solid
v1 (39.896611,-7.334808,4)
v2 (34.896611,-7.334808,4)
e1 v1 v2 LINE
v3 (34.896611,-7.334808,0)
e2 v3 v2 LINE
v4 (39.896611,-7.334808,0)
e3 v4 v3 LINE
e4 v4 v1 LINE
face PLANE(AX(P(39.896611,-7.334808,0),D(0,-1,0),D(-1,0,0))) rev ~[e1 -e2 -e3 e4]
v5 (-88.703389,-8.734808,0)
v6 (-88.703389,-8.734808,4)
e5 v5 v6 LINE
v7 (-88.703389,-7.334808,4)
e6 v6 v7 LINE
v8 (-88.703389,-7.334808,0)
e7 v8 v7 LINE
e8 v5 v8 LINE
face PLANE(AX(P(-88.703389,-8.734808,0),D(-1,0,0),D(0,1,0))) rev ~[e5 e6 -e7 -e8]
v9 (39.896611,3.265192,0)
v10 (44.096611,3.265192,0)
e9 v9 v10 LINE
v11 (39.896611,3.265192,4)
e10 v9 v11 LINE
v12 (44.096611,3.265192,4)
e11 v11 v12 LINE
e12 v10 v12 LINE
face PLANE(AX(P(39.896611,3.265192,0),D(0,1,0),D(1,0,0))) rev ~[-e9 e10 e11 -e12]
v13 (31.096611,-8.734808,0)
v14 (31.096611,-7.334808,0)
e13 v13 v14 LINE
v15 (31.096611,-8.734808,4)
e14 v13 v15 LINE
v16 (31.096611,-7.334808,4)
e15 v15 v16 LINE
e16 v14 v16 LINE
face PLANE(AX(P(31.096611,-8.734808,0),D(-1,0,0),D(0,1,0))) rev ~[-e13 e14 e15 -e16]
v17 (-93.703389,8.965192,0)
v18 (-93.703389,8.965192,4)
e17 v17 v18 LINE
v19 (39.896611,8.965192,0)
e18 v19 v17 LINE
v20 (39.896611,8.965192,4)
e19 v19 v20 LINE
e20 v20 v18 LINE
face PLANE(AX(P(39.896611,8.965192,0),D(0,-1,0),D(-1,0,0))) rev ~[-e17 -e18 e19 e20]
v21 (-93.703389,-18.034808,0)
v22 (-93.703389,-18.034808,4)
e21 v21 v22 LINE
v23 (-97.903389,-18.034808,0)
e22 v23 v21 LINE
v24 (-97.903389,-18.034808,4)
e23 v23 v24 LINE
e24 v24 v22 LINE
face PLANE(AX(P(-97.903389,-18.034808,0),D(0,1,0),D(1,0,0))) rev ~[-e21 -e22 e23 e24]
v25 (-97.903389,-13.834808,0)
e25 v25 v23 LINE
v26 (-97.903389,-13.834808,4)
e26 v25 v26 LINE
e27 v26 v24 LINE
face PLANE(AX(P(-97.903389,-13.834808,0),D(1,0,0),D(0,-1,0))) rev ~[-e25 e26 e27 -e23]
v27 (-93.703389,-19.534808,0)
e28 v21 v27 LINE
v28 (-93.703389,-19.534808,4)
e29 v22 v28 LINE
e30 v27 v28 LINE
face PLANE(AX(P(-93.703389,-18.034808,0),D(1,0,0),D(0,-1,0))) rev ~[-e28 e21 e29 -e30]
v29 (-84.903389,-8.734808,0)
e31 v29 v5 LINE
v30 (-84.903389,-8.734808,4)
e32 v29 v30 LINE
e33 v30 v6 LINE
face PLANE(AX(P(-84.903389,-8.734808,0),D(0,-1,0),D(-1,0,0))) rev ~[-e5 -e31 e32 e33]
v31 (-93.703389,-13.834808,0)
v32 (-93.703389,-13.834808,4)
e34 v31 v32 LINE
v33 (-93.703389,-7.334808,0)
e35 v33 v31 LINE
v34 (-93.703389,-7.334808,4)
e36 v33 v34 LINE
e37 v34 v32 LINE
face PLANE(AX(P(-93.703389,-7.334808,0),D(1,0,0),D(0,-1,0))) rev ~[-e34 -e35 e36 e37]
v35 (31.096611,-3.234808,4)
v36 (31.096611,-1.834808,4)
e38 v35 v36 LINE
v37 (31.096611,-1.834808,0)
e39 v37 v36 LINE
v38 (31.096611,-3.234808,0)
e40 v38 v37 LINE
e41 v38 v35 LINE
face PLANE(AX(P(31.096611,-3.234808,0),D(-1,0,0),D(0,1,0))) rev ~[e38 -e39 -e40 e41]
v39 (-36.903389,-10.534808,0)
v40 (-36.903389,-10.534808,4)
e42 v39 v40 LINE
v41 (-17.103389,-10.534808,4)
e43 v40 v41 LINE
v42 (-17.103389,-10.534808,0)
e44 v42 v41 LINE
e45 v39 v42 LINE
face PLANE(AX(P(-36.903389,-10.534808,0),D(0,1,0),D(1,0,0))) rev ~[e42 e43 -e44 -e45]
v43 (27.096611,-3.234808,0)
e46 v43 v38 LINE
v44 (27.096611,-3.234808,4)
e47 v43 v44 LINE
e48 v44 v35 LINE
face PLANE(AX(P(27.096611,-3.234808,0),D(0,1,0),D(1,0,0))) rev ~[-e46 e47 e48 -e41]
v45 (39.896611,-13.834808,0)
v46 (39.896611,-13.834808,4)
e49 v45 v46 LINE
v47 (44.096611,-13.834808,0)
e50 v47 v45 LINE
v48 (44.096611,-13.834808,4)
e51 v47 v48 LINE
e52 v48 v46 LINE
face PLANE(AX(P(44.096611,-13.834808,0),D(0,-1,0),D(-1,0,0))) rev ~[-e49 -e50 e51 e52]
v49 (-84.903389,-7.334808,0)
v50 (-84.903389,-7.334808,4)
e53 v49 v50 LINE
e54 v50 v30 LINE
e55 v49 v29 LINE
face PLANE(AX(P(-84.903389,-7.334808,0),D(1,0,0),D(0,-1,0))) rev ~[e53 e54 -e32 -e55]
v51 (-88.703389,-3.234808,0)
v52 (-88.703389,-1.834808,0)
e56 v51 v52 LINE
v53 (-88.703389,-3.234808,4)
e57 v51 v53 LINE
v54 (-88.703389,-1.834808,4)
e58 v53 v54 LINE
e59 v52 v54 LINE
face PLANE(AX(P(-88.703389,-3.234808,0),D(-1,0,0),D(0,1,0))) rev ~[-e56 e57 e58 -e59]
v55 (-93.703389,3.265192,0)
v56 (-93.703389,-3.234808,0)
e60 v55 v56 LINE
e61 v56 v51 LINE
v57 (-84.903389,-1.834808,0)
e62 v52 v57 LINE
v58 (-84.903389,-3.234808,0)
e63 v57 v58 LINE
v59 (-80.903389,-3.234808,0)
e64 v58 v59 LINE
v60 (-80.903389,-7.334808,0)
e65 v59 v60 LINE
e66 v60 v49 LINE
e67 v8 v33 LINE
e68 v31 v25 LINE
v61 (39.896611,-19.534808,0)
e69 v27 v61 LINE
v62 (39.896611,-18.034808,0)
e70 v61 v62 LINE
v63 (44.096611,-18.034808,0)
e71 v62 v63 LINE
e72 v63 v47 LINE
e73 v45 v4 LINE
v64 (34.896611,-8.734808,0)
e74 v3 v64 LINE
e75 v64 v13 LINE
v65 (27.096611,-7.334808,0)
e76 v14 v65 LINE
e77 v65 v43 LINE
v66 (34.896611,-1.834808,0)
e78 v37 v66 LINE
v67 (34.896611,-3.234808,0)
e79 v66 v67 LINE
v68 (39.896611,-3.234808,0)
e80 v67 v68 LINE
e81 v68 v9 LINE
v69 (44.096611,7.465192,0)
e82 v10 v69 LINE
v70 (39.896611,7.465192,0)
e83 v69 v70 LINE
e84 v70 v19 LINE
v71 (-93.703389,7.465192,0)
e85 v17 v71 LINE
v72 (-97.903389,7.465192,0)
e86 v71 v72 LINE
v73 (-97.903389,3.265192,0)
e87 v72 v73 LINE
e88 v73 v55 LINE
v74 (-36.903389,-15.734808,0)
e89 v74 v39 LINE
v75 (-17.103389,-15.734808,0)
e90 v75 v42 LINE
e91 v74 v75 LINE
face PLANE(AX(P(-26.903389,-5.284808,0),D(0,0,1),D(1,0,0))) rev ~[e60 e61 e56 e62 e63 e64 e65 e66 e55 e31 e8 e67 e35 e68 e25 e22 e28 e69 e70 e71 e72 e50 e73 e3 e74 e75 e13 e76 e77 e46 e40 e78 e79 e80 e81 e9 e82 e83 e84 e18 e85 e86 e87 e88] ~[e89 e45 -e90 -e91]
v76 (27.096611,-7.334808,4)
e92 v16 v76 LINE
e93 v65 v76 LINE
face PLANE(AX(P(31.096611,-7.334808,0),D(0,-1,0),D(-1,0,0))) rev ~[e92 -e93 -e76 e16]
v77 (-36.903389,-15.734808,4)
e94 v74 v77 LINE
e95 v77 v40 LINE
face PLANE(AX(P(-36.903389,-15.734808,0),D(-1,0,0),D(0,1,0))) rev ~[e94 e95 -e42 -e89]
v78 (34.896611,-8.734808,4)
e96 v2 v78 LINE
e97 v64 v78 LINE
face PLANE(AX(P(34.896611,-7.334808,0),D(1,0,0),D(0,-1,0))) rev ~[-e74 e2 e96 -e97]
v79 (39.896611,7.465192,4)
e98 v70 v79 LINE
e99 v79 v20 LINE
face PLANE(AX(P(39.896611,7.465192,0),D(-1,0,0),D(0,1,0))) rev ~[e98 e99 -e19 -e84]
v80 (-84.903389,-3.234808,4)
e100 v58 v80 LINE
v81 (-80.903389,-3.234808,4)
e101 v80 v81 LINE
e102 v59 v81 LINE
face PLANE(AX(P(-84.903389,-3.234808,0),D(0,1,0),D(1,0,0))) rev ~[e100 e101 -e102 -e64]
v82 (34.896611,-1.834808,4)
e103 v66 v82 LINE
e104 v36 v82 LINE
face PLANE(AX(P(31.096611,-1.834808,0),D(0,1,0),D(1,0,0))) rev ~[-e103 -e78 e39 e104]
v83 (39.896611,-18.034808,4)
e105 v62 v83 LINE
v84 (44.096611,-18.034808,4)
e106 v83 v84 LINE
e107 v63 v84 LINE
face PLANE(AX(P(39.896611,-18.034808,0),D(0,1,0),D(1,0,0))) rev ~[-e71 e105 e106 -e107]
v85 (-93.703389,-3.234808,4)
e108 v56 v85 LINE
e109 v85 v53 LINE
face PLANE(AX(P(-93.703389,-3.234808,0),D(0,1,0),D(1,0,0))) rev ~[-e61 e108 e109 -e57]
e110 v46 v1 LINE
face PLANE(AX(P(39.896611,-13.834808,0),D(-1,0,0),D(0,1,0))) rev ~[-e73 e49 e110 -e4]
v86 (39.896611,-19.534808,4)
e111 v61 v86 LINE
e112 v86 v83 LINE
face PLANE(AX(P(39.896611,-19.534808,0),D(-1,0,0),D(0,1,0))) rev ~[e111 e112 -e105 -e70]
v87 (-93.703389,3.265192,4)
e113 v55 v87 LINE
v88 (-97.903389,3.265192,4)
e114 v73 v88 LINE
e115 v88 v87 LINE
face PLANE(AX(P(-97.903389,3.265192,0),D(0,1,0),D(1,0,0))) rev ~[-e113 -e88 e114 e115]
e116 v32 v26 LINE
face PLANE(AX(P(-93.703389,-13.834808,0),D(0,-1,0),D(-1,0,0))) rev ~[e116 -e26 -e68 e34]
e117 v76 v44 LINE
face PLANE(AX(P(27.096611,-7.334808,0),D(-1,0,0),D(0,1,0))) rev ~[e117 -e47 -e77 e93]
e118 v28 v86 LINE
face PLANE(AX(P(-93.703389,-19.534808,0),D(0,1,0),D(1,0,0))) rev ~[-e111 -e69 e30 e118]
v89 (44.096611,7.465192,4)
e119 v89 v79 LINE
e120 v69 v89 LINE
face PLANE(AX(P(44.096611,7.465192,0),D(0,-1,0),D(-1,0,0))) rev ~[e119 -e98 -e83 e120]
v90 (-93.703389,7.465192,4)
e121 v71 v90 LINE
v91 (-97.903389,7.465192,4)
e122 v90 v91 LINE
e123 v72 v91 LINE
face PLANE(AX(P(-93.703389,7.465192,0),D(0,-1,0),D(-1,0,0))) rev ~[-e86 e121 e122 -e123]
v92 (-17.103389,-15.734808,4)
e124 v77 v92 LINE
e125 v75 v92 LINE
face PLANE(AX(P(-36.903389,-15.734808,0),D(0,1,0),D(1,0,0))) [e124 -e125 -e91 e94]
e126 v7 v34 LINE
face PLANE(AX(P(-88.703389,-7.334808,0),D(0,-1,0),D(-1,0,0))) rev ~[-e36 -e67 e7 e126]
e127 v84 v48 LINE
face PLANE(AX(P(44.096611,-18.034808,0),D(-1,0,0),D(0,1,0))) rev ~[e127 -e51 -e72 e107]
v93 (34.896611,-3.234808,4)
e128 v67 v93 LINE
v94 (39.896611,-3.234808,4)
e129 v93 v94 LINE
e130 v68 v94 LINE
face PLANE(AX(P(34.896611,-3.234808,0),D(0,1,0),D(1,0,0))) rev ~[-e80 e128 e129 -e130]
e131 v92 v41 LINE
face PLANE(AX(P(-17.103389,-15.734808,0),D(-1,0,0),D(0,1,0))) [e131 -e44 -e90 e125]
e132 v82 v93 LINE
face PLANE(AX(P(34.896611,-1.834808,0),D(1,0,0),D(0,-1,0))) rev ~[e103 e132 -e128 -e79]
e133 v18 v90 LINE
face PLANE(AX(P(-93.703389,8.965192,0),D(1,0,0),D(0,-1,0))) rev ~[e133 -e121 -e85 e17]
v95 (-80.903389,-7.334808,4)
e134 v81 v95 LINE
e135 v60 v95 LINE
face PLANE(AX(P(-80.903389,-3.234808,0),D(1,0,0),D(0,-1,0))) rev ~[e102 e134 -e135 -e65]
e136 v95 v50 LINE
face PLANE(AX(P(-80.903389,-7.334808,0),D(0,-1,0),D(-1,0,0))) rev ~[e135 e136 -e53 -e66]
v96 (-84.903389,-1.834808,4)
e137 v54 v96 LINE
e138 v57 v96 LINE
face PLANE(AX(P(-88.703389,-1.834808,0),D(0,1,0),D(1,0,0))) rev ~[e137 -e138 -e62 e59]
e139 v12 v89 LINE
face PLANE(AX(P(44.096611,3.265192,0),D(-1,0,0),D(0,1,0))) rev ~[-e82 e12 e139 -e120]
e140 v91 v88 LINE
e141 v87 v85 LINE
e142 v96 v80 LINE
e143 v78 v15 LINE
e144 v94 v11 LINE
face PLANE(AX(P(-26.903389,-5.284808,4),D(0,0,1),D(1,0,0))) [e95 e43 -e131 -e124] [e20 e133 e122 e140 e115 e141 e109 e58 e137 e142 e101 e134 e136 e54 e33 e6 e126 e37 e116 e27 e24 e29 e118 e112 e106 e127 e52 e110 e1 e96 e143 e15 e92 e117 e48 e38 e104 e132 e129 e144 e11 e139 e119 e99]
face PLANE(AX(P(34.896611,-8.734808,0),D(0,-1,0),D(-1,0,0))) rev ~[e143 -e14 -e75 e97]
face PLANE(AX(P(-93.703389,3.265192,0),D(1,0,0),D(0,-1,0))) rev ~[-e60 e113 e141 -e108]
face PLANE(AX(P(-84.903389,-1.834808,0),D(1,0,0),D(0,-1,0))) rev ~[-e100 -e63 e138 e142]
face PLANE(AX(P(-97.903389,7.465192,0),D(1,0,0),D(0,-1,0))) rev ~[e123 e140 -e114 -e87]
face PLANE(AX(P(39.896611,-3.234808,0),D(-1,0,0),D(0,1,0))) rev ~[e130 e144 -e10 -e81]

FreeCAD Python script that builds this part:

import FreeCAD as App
import Part
import Sketcher
Q = App.Units.Quantity

doc = App.newDocument("Part")
params = doc.addObject("Spreadsheet::Sheet", "Params")
for row, (alias, value) in enumerate([
    ("sketch1_width", "5 mm"),
    ("sketch1_width2", "4 mm"),
    ("sketch1_width3", "133.6 mm"),
    ("sketch1_width4", "4.2 mm"),
    ("sketch1_width5", "3.8 mm"),
    ("pad1_length", "4 mm"),
], start=1):
    params.set(f"A{row}", alias)
    params.set(f"B{row}", "=" + value)
    params.setAlias(f"B{row}", alias)

body = doc.addObject("PartDesign::Body", "Body")

# Sketch on XY plane
sketch1 = doc.addObject("Sketcher::SketchObject", "Sketch")
body.addObject(sketch1)
sketch1.AttachmentSupport = (doc.XY_Plane, [""])
sketch1.MapMode = "FlatFace"
sketch1.addGeometry([
    Part.LineSegment(App.Vector(39.896611, 8.965192, 0), App.Vector(-93.703389, 8.965192, 0)),  # 0
    Part.LineSegment(App.Vector(-93.703389, 8.965192, 0), App.Vector(-93.703389, 7.465192, 0)),  # 1
    Part.LineSegment(App.Vector(-93.703389, 7.465192, 0), App.Vector(-97.903389, 7.465192, 0)),  # 2
    Part.LineSegment(App.Vector(-97.903389, 7.465192, 0), App.Vector(-97.903389, 3.265192, 0)),  # 3
    Part.LineSegment(App.Vector(-97.903389, 3.265192, 0), App.Vector(-93.703389, 3.265192, 0)),  # 4
    Part.LineSegment(App.Vector(-93.703389, 3.265192, 0), App.Vector(-93.703389, -3.234808, 0)),  # 5
    Part.LineSegment(App.Vector(-93.703389, -3.234808, 0), App.Vector(-88.703389, -3.234808, 0)),  # 6
    Part.LineSegment(App.Vector(-88.703389, -3.234808, 0), App.Vector(-88.703389, -1.834808, 0)),  # 7
    Part.LineSegment(App.Vector(-88.703389, -1.834808, 0), App.Vector(-84.903389, -1.834808, 0)),  # 8
    Part.LineSegment(App.Vector(-84.903389, -1.834808, 0), App.Vector(-84.903389, -3.234808, 0)),  # 9
    Part.LineSegment(App.Vector(-84.903389, -3.234808, 0), App.Vector(-80.903389, -3.234808, 0)),  # 10
    Part.LineSegment(App.Vector(-80.903389, -3.234808, 0), App.Vector(-80.903389, -7.334808, 0)),  # 11
    Part.LineSegment(App.Vector(-80.903389, -7.334808, 0), App.Vector(-84.903389, -7.334808, 0)),  # 12
    Part.LineSegment(App.Vector(-84.903389, -7.334808, 0), App.Vector(-84.903389, -8.734808, 0)),  # 13
    Part.LineSegment(App.Vector(-84.903389, -8.734808, 0), App.Vector(-88.703389, -8.734808, 0)),  # 14
    Part.LineSegment(App.Vector(-88.703389, -8.734808, 0), App.Vector(-88.703389, -7.334808, 0)),  # 15
    Part.LineSegment(App.Vector(-88.703389, -7.334808, 0), App.Vector(-93.703389, -7.334808, 0)),  # 16
    Part.LineSegment(App.Vector(-93.703389, -7.334808, 0), App.Vector(-93.703389, -13.834808, 0)),  # 17
    Part.LineSegment(App.Vector(-93.703389, -13.834808, 0), App.Vector(-97.903389, -13.834808, 0)),  # 18
    Part.LineSegment(App.Vector(-97.903389, -13.834808, 0), App.Vector(-97.903389, -18.034808, 0)),  # 19
    Part.LineSegment(App.Vector(-97.903389, -18.034808, 0), App.Vector(-93.703389, -18.034808, 0)),  # 20
    Part.LineSegment(App.Vector(-93.703389, -18.034808, 0), App.Vector(-93.703389, -19.534808, 0)),  # 21
    Part.LineSegment(App.Vector(-93.703389, -19.534808, 0), App.Vector(39.896611, -19.534808, 0)),  # 22
    Part.LineSegment(App.Vector(39.896611, -19.534808, 0), App.Vector(39.896611, -18.034808, 0)),  # 23
    Part.LineSegment(App.Vector(39.896611, -18.034808, 0), App.Vector(44.096611, -18.034808, 0)),  # 24
    Part.LineSegment(App.Vector(44.096611, -18.034808, 0), App.Vector(44.096611, -13.834808, 0)),  # 25
    Part.LineSegment(App.Vector(44.096611, -13.834808, 0), App.Vector(39.896611, -13.834808, 0)),  # 26
    Part.LineSegment(App.Vector(39.896611, -13.834808, 0), App.Vector(39.896611, -7.334808, 0)),  # 27
    Part.LineSegment(App.Vector(39.896611, -7.334808, 0), App.Vector(34.896611, -7.334808, 0)),  # 28
    Part.LineSegment(App.Vector(34.896611, -7.334808, 0), App.Vector(34.896611, -8.734808, 0)),  # 29
    Part.LineSegment(App.Vector(34.896611, -8.734808, 0), App.Vector(31.096611, -8.734808, 0)),  # 30
    Part.LineSegment(App.Vector(31.096611, -8.734808, 0), App.Vector(31.096611, -7.334808, 0)),  # 31
    Part.LineSegment(App.Vector(31.096611, -7.334808, 0), App.Vector(27.096611, -7.334808, 0)),  # 32
    Part.LineSegment(App.Vector(27.096611, -7.334808, 0), App.Vector(27.096611, -3.234808, 0)),  # 33
    Part.LineSegment(App.Vector(27.096611, -3.234808, 0), App.Vector(31.096611, -3.234808, 0)),  # 34
    Part.LineSegment(App.Vector(31.096611, -3.234808, 0), App.Vector(31.096611, -1.834808, 0)),  # 35
    Part.LineSegment(App.Vector(31.096611, -1.834808, 0), App.Vector(34.896611, -1.834808, 0)),  # 36
    Part.LineSegment(App.Vector(34.896611, -1.834808, 0), App.Vector(34.896611, -3.234808, 0)),  # 37
    Part.LineSegment(App.Vector(34.896611, -3.234808, 0), App.Vector(39.896611, -3.234808, 0)),  # 38
    Part.LineSegment(App.Vector(39.896611, -3.234808, 0), App.Vector(39.896611, 3.265192, 0)),  # 39
    Part.LineSegment(App.Vector(39.896611, 3.265192, 0), App.Vector(44.096611, 3.265192, 0)),  # 40
    Part.LineSegment(App.Vector(44.096611, 3.265192, 0), App.Vector(44.096611, 7.465192, 0)),  # 41
    Part.LineSegment(App.Vector(44.096611, 7.465192, 0), App.Vector(39.896611, 7.465192, 0)),  # 42
    Part.LineSegment(App.Vector(39.896611, 7.465192, 0), App.Vector(39.896611, 8.965192, 0)),  # 43
    Part.LineSegment(App.Vector(-17.103389, -15.734808, 0), App.Vector(-36.903389, -15.734808, 0)),  # 44
    Part.LineSegment(App.Vector(-36.903389, -15.734808, 0), App.Vector(-36.903389, -10.534808, 0)),  # 45
    Part.LineSegment(App.Vector(-36.903389, -10.534808, 0), App.Vector(-17.103389, -10.534808, 0)),  # 46
    Part.LineSegment(App.Vector(-17.103389, -10.534808, 0), App.Vector(-17.103389, -15.734808, 0)),  # 47
], False)
sketch1.addConstraint([
    Sketcher.Constraint("Coincident", 0, 2, 1, 1),
    Sketcher.Constraint("Coincident", 1, 2, 2, 1),
    Sketcher.Constraint("Coincident", 2, 2, 3, 1),
    Sketcher.Constraint("Coincident", 3, 2, 4, 1),
    Sketcher.Constraint("Coincident", 4, 2, 5, 1),
    Sketcher.Constraint("Coincident", 5, 2, 6, 1),
    Sketcher.Constraint("Coincident", 6, 2, 7, 1),
    Sketcher.Constraint("Coincident", 7, 2, 8, 1),
    Sketcher.Constraint("Coincident", 8, 2, 9, 1),
    Sketcher.Constraint("Coincident", 9, 2, 10, 1),
    Sketcher.Constraint("Coincident", 10, 2, 11, 1),
    Sketcher.Constraint("Coincident", 11, 2, 12, 1),
    Sketcher.Constraint("Coincident", 12, 2, 13, 1),
    Sketcher.Constraint("Coincident", 13, 2, 14, 1),
    Sketcher.Constraint("Coincident", 14, 2, 15, 1),
    Sketcher.Constraint("Coincident", 15, 2, 16, 1),
    Sketcher.Constraint("Coincident", 16, 2, 17, 1),
    Sketcher.Constraint("Coincident", 17, 2, 18, 1),
    Sketcher.Constraint("Coincident", 18, 2, 19, 1),
    Sketcher.Constraint("Coincident", 19, 2, 20, 1),
    Sketcher.Constraint("Coincident", 20, 2, 21, 1),
    Sketcher.Constraint("Coincident", 21, 2, 22, 1),
    Sketcher.Constraint("Coincident", 22, 2, 23, 1),
    Sketcher.Constraint("Coincident", 23, 2, 24, 1),
    Sketcher.Constraint("Coincident", 24, 2, 25, 1),
    Sketcher.Constraint("Coincident", 25, 2, 26, 1),
    Sketcher.Constraint("Coincident", 26, 2, 27, 1),
    Sketcher.Constraint("Coincident", 27, 2, 28, 1),
    Sketcher.Constraint("Coincident", 28, 2, 29, 1),
    Sketcher.Constraint("Coincident", 29, 2, 30, 1),
    Sketcher.Constraint("Coincident", 30, 2, 31, 1),
    Sketcher.Constraint("Coincident", 31, 2, 32, 1),
    Sketcher.Constraint("Coincident", 32, 2, 33, 1),
    Sketcher.Constraint("Coincident", 33, 2, 34, 1),
    Sketcher.Constraint("Coincident", 34, 2, 35, 1),
    Sketcher.Constraint("Coincident", 35, 2, 36, 1),
    Sketcher.Constraint("Coincident", 36, 2, 37, 1),
    Sketcher.Constraint("Coincident", 37, 2, 38, 1),
    Sketcher.Constraint("Coincident", 38, 2, 39, 1),
    Sketcher.Constraint("Coincident", 39, 2, 40, 1),
    Sketcher.Constraint("Coincident", 40, 2, 41, 1),
    Sketcher.Constraint("Coincident", 41, 2, 42, 1),
    Sketcher.Constraint("Coincident", 42, 2, 43, 1),
    Sketcher.Constraint("Coincident", 43, 2, 0, 1),
    Sketcher.Constraint("Coincident", 44, 2, 45, 1),
    Sketcher.Constraint("Coincident", 45, 2, 46, 1),
    Sketcher.Constraint("Coincident", 46, 2, 47, 1),
    Sketcher.Constraint("Coincident", 47, 2, 44, 1),
    Sketcher.Constraint("Horizontal", 0),
    Sketcher.Constraint("Vertical", 1),
    Sketcher.Constraint("Horizontal", 2),
    Sketcher.Constraint("Vertical", 3),
    Sketcher.Constraint("Horizontal", 4),
    Sketcher.Constraint("Vertical", 5),
    Sketcher.Constraint("Horizontal", 6),
    Sketcher.Constraint("Vertical", 7),
    Sketcher.Constraint("Horizontal", 8),
    Sketcher.Constraint("Vertical", 9),
    Sketcher.Constraint("Horizontal", 10),
    Sketcher.Constraint("Vertical", 11),
    Sketcher.Constraint("Horizontal", 12),
    Sketcher.Constraint("Vertical", 13),
    Sketcher.Constraint("Horizontal", 14),
    Sketcher.Constraint("Vertical", 15),
    Sketcher.Constraint("Horizontal", 16),
    Sketcher.Constraint("Vertical", 17),
    Sketcher.Constraint("Horizontal", 18),
    Sketcher.Constraint("Vertical", 19),
    Sketcher.Constraint("Horizontal", 20),
    Sketcher.Constraint("Vertical", 21),
    Sketcher.Constraint("Horizontal", 22),
    Sketcher.Constraint("Vertical", 23),
    Sketcher.Constraint("Horizontal", 24),
    Sketcher.Constraint("Vertical", 25),
    Sketcher.Constraint("Horizontal", 26),
    Sketcher.Constraint("Vertical", 27),
    Sketcher.Constraint("Horizontal", 28),
    Sketcher.Constraint("Vertical", 29),
    Sketcher.Constraint("Horizontal", 30),
    Sketcher.Constraint("Vertical", 31),
    Sketcher.Constraint("Horizontal", 32),
    Sketcher.Constraint("Vertical", 33),
    Sketcher.Constraint("Horizontal", 34),
    Sketcher.Constraint("Vertical", 35),
    Sketcher.Constraint("Horizontal", 36),
    Sketcher.Constraint("Vertical", 37),
    Sketcher.Constraint("Horizontal", 38),
    Sketcher.Constraint("Vertical", 39),
    Sketcher.Constraint("Horizontal", 40),
    Sketcher.Constraint("Vertical", 41),
    Sketcher.Constraint("Horizontal", 42),
    Sketcher.Constraint("Vertical", 43),
    Sketcher.Constraint("Horizontal", 44),
    Sketcher.Constraint("Vertical", 45),
    Sketcher.Constraint("Horizontal", 46),
    Sketcher.Constraint("Vertical", 47),
    Sketcher.Constraint("Horizontal", 6, 2, 9, 2),
    Sketcher.Constraint("Horizontal", 12, 2, 15, 2),
    Sketcher.Constraint("Horizontal", 20, 2, 23, 2),
    Sketcher.Constraint("Horizontal", 18, 2, 25, 2),
    Sketcher.Constraint("Horizontal", 16, 2, 27, 2),
    Sketcher.Constraint("Horizontal", 14, 2, 29, 2),
    Sketcher.Constraint("Horizontal", 28, 2, 31, 2),
    Sketcher.Constraint("Horizontal", 10, 2, 33, 2),
    Sketcher.Constraint("Horizontal", 8, 2, 35, 2),
    Sketcher.Constraint("Horizontal", 34, 2, 37, 2),
    Sketcher.Constraint("Horizontal", 4, 2, 39, 2),
    Sketcher.Constraint("Horizontal", 2, 2, 41, 2),
    Sketcher.Constraint("Vertical", 1, 2, 4, 2),
    Sketcher.Constraint("Vertical", 9, 2, 12, 2),
    Sketcher.Constraint("Vertical", 7, 2, 14, 2),
    Sketcher.Constraint("Vertical", 5, 2, 16, 2),
    Sketcher.Constraint("Vertical", 3, 2, 18, 2),
    Sketcher.Constraint("Vertical", 17, 2, 20, 2),
    Sketcher.Constraint("Vertical", 23, 2, 26, 2),
    Sketcher.Constraint("Vertical", 31, 2, 34, 2),
    Sketcher.Constraint("Vertical", 29, 2, 36, 2),
    Sketcher.Constraint("Vertical", 27, 2, 38, 2),
    Sketcher.Constraint("Vertical", 25, 2, 40, 2),
    Sketcher.Constraint("Vertical", 39, 2, 42, 2),
    Sketcher.Constraint("Equal", 20, 24),
    Sketcher.Constraint("Equal", 16, 28),
    Sketcher.Constraint("Equal", 14, 30),
    Sketcher.Constraint("Equal", 12, 32),
    Sketcher.Constraint("Equal", 42, 3),
    Sketcher.Constraint("Equal", 9, 13),
    Sketcher.Constraint("Equal", 5, 17),
    Sketcher.Constraint("Equal", 3, 19),
    Sketcher.Constraint("Equal", 1, 21),
    Sketcher.Constraint("DistanceX", 6, 1, 6, 2, Q("5 mm")),
    Sketcher.Constraint("DistanceX", 10, 1, 10, 2, Q("4 mm")),
    Sketcher.Constraint("DistanceX", 0, 2, 0, 1, Q("133.6 mm")),
    Sketcher.Constraint("DistanceX", 2, 2, 2, 1, Q("4.2 mm")),
    Sketcher.Constraint("DistanceX", 8, 1, 8, 2, Q("3.8 mm")),
    Sketcher.Constraint("DistanceX", 44, 2, 44, 1, Q("19.8 mm")),
    Sketcher.Constraint("DistanceY", 1, 2, 1, 1, Q("1.5 mm")),
    Sketcher.Constraint("DistanceY", 5, 2, 5, 1, Q("6.5 mm")),
    Sketcher.Constraint("DistanceY", 7, 1, 7, 2, Q("1.4 mm")),
    Sketcher.Constraint("DistanceY", 11, 2, 11, 1, Q("4.1 mm")),
    Sketcher.Constraint("DistanceY", 45, 1, 45, 2, Q("5.2 mm")),
    Sketcher.Constraint("DistanceX", 11, 2, 44, 2, Q("44 mm")),
    Sketcher.Constraint("DistanceY", 44, 2, 13, 2, Q("7 mm")),
    Sketcher.Constraint("DistanceX", 0, 2, -1, 1, Q("93.703389 mm")),
    Sketcher.Constraint("DistanceY", -1, 1, 3, 2, Q("3.265192 mm")),
])
sketch1.setExpression("Constraints[129]", "Params.sketch1_width")
sketch1.setExpression("Constraints[130]", "Params.sketch1_width2")
sketch1.setExpression("Constraints[131]", "Params.sketch1_width3")
sketch1.setExpression("Constraints[132]", "Params.sketch1_width4")
sketch1.setExpression("Constraints[133]", "Params.sketch1_width5")
pad1 = doc.addObject("PartDesign::Pad", "Pad")
body.addObject(pad1)
pad1.Profile = sketch1
pad1.setExpression("Length", "Params.pad1_length")

doc.recompute()
